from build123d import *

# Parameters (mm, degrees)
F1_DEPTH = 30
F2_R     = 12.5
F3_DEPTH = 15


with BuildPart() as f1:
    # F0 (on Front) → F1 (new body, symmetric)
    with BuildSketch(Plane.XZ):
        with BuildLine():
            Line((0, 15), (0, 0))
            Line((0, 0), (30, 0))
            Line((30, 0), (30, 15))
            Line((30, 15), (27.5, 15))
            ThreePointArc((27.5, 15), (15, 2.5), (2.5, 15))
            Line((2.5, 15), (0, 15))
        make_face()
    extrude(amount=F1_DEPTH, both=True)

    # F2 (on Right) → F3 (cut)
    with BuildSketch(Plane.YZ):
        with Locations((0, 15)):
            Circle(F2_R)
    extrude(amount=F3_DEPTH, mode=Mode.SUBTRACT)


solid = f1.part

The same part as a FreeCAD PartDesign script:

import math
import FreeCAD as App
import Part
import Sketcher

V = App.Vector

doc = App.newDocument("Part")
body = doc.addObject("PartDesign::Body", "Body")

# Sketch on XZ plane
sketch1 = doc.addObject("Sketcher::SketchObject", "Sketch")
body.addObject(sketch1)
sketch1.AttachmentSupport = (doc.XZ_Plane, [""])
sketch1.MapMode = "FlatFace"
sketch1.addGeometry([
    Part.LineSegment(V(0, 15, 0), V(0, 0, 0)),  # 0
    Part.LineSegment(V(0, 0, 0), V(30, 0, 0)),  # 1
    Part.LineSegment(V(30, 0, 0), V(30, 15, 0)),  # 2
    Part.LineSegment(V(30, 15, 0), V(27.5, 15, 0)),  # 3
    Part.ArcOfCircle(Part.Circle(V(15, 15, 0), V(0, 0, 1), 12.5), math.radians(180), math.radians(360)),  # 4
    Part.LineSegment(V(2.5, 15, 0), V(0, 15, 0)),  # 5
], False)
sketch1.addConstraint([
    Sketcher.Constraint("Coincident", 0, 2, 1, 1),
    Sketcher.Constraint("Coincident", 1, 2, 2, 1),
    Sketcher.Constraint("Coincident", 2, 2, 3, 1),
    Sketcher.Constraint("Coincident", 3, 2, 4, 2),
    Sketcher.Constraint("Coincident", 4, 1, 5, 1),
    Sketcher.Constraint("Coincident", 5, 2, 0, 1),
    Sketcher.Constraint("Vertical", 0),
    Sketcher.Constraint("Horizontal", 1),
    Sketcher.Constraint("Vertical", 2),
    Sketcher.Constraint("Horizontal", 3),
    Sketcher.Constraint("Horizontal", 5),
    Sketcher.Constraint("Coincident", 0, 2, -1, 1),
    Sketcher.Constraint("Horizontal", 4, 3, 2, 2),
    Sketcher.Constraint("Horizontal", 3, 2, 4, 1),
    Sketcher.Constraint("Equal", 3, 5),
    Sketcher.Constraint("Radius", 4, 12.5),
    Sketcher.Constraint("DistanceX", 1, 1, 1, 2, 30.0),
    Sketcher.Constraint("DistanceY", 0, 2, 0, 1, 15.0),
])
pad1 = doc.addObject("PartDesign::Pad", "Pad")
body.addObject(pad1)
pad1.Profile = sketch1
pad1.Length = 60
pad1.Midplane = True

# Sketch on YZ plane
sketch2 = doc.addObject("Sketcher::SketchObject", "Sketch001")
body.addObject(sketch2)
sketch2.AttachmentSupport = (doc.YZ_Plane, [""])
sketch2.MapMode = "FlatFace"
sketch2.addGeometry(Part.Circle(V(0, 15, 0), V(0, 0, 1), 12.5), False)
sketch2.addConstraint([
    Sketcher.Constraint("PointOnObject", 0, 3, -2),
    Sketcher.Constraint("Diameter", 0, 25.0),
    Sketcher.Constraint("DistanceY", -1, 1, 0, 3, 15.0),
])
pocket1 = doc.addObject("PartDesign::Pocket", "Pocket")
body.addObject(pocket1)
pocket1.Profile = sketch2
pocket1.Length = 15
pocket1.Reversed = True

doc.recompute()
